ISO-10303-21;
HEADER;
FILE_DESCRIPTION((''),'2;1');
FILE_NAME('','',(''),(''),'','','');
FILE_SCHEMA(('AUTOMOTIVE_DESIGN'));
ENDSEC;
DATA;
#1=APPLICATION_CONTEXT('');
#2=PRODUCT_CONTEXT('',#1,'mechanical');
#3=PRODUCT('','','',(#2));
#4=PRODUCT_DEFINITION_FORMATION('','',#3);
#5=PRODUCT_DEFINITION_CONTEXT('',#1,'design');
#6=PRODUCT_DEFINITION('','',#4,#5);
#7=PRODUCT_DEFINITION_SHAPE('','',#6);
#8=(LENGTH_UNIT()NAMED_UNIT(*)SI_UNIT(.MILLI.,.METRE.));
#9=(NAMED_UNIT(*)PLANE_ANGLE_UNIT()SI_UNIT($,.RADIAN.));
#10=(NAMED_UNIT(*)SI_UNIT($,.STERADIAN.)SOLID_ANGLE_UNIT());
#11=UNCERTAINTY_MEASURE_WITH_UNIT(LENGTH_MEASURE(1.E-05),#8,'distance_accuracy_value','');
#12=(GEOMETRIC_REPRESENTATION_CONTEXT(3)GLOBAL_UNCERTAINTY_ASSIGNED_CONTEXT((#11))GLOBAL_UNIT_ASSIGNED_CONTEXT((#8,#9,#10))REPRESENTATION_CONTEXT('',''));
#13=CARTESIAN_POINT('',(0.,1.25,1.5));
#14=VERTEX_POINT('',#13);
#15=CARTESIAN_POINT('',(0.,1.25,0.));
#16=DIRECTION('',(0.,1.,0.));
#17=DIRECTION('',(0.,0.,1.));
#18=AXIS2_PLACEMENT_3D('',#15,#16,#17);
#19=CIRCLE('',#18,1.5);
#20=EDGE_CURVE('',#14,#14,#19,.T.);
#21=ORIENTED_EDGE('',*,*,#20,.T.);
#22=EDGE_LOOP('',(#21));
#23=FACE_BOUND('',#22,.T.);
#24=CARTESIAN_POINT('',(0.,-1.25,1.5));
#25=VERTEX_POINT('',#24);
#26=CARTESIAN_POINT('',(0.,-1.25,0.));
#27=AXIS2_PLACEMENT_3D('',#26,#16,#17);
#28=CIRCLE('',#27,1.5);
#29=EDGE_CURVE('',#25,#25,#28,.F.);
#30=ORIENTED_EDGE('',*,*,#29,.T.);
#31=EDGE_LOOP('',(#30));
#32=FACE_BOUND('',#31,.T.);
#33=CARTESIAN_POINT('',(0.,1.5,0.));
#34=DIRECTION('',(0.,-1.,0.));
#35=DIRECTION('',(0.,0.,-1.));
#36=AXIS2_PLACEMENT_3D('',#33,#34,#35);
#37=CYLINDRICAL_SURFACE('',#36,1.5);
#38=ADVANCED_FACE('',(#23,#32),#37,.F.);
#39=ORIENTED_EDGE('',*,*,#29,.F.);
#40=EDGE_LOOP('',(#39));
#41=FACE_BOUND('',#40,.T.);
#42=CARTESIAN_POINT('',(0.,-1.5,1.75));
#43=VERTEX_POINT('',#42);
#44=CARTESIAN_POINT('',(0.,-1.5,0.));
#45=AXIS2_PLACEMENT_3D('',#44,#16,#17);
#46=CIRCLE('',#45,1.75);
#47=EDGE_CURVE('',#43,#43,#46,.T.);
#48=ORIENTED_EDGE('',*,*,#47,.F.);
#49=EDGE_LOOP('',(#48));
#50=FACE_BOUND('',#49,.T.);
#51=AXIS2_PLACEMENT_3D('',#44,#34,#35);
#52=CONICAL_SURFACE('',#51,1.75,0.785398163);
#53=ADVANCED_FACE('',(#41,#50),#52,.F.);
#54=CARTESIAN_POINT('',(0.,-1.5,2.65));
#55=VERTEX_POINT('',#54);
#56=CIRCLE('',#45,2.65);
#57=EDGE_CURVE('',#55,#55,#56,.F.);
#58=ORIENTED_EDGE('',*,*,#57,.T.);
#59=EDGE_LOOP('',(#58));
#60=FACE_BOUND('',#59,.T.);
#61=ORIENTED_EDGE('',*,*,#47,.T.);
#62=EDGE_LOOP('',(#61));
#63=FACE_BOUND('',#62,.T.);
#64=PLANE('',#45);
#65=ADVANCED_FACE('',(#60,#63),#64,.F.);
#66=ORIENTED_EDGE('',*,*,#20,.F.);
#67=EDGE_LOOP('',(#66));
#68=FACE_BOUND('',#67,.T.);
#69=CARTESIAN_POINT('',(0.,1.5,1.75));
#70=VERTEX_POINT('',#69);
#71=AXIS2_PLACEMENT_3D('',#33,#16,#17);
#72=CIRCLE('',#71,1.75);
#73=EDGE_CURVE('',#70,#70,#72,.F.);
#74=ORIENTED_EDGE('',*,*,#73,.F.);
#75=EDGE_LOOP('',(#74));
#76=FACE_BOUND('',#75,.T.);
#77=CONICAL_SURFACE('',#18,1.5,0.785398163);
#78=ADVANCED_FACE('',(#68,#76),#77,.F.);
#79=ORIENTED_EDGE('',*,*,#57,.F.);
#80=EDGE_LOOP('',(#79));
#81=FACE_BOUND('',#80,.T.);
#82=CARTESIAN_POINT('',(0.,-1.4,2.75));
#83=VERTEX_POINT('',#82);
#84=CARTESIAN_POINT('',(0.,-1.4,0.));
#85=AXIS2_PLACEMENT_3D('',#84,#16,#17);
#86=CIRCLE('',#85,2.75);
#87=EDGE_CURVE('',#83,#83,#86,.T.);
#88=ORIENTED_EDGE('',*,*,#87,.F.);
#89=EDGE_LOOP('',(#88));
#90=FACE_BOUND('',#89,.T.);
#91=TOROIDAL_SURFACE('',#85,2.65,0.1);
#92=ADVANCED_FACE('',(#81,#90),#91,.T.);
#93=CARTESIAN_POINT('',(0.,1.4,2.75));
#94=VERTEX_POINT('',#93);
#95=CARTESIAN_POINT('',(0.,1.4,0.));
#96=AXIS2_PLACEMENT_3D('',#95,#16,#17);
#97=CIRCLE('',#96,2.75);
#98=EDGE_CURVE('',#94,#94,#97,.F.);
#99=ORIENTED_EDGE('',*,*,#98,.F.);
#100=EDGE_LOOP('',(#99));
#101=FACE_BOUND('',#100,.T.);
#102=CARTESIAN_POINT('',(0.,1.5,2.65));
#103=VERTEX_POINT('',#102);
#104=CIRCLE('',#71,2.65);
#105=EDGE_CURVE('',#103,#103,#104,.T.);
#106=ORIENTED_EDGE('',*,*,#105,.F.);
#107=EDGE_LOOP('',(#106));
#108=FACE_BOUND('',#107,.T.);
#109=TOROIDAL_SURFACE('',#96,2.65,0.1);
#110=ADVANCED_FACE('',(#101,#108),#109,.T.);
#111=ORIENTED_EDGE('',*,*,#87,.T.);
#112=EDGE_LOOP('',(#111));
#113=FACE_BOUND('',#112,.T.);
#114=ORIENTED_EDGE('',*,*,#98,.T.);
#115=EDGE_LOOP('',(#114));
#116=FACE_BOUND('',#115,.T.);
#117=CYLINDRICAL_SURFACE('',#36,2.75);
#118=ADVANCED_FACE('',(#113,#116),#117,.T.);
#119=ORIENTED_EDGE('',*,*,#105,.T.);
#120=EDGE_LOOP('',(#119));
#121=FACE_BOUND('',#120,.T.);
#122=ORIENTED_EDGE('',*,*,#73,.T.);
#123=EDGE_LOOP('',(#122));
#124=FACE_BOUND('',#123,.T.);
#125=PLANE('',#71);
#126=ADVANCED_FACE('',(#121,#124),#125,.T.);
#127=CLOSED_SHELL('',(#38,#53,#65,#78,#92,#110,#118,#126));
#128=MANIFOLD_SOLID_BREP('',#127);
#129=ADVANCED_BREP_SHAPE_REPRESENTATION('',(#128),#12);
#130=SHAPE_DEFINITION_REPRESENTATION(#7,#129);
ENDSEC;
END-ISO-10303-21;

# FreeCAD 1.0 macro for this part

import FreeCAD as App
import Part
import Sketcher
Q = App.Units.Quantity


def edges_at(feature, points):
    """Names of the edges that pass closest to the given points."""
    edges = feature.Shape.Edges
    near = lambda p: min(range(len(edges)), key=lambda i: edges[i].distToShape(Part.Vertex(*p))[0])
    return sorted({f"Edge{near(p) + 1}" for p in points})

doc = App.newDocument("Part")
body = doc.addObject("PartDesign::Body", "Body")

# Sketch on XZ plane
sketch1 = doc.addObject("Sketcher::SketchObject", "Sketch")
body.addObject(sketch1)
sketch1.AttachmentSupport = (doc.XZ_Plane, [""])
sketch1.MapMode = "FlatFace"
sketch1.addGeometry([
    Part.Circle(App.Vector(0, 0, 0), App.Vector(0, 0, 1), 2.8),
    Part.Circle(App.Vector(0, 0, 0), App.Vector(0, 0, 1), 1.5),
], False)
sketch1.addConstraint([
    Sketcher.Constraint("Coincident", 0, 3, -1, 1),
    Sketcher.Constraint("Coincident", 1, 3, -1, 1),
    Sketcher.Constraint("Diameter", 1, Q("3 mm")),
    Sketcher.Constraint("Diameter", 0, Q("5.5 mm")),
])
pad1 = doc.addObject("PartDesign::Pad", "Pad")
body.addObject(pad1)
pad1.Profile = sketch1
pad1.Length = 3
pad1.Midplane = True
doc.recompute()

chamfer = doc.addObject("PartDesign::Chamfer", "Chamfer")
body.addObject(chamfer)
chamfer.Base = (pad1, edges_at(pad1, [(0, -1.5, -1.5), (0, 1.5, -1.5)]))
chamfer.Size = 0.25
doc.recompute()

fillet = doc.addObject("PartDesign::Fillet", "Fillet")
body.addObject(fillet)
fillet.Base = (chamfer, edges_at(chamfer, [(0, -1.5, -2.75), (0, 1.5, -2.75)]))
fillet.Radius = 0.1

doc.recompute()
